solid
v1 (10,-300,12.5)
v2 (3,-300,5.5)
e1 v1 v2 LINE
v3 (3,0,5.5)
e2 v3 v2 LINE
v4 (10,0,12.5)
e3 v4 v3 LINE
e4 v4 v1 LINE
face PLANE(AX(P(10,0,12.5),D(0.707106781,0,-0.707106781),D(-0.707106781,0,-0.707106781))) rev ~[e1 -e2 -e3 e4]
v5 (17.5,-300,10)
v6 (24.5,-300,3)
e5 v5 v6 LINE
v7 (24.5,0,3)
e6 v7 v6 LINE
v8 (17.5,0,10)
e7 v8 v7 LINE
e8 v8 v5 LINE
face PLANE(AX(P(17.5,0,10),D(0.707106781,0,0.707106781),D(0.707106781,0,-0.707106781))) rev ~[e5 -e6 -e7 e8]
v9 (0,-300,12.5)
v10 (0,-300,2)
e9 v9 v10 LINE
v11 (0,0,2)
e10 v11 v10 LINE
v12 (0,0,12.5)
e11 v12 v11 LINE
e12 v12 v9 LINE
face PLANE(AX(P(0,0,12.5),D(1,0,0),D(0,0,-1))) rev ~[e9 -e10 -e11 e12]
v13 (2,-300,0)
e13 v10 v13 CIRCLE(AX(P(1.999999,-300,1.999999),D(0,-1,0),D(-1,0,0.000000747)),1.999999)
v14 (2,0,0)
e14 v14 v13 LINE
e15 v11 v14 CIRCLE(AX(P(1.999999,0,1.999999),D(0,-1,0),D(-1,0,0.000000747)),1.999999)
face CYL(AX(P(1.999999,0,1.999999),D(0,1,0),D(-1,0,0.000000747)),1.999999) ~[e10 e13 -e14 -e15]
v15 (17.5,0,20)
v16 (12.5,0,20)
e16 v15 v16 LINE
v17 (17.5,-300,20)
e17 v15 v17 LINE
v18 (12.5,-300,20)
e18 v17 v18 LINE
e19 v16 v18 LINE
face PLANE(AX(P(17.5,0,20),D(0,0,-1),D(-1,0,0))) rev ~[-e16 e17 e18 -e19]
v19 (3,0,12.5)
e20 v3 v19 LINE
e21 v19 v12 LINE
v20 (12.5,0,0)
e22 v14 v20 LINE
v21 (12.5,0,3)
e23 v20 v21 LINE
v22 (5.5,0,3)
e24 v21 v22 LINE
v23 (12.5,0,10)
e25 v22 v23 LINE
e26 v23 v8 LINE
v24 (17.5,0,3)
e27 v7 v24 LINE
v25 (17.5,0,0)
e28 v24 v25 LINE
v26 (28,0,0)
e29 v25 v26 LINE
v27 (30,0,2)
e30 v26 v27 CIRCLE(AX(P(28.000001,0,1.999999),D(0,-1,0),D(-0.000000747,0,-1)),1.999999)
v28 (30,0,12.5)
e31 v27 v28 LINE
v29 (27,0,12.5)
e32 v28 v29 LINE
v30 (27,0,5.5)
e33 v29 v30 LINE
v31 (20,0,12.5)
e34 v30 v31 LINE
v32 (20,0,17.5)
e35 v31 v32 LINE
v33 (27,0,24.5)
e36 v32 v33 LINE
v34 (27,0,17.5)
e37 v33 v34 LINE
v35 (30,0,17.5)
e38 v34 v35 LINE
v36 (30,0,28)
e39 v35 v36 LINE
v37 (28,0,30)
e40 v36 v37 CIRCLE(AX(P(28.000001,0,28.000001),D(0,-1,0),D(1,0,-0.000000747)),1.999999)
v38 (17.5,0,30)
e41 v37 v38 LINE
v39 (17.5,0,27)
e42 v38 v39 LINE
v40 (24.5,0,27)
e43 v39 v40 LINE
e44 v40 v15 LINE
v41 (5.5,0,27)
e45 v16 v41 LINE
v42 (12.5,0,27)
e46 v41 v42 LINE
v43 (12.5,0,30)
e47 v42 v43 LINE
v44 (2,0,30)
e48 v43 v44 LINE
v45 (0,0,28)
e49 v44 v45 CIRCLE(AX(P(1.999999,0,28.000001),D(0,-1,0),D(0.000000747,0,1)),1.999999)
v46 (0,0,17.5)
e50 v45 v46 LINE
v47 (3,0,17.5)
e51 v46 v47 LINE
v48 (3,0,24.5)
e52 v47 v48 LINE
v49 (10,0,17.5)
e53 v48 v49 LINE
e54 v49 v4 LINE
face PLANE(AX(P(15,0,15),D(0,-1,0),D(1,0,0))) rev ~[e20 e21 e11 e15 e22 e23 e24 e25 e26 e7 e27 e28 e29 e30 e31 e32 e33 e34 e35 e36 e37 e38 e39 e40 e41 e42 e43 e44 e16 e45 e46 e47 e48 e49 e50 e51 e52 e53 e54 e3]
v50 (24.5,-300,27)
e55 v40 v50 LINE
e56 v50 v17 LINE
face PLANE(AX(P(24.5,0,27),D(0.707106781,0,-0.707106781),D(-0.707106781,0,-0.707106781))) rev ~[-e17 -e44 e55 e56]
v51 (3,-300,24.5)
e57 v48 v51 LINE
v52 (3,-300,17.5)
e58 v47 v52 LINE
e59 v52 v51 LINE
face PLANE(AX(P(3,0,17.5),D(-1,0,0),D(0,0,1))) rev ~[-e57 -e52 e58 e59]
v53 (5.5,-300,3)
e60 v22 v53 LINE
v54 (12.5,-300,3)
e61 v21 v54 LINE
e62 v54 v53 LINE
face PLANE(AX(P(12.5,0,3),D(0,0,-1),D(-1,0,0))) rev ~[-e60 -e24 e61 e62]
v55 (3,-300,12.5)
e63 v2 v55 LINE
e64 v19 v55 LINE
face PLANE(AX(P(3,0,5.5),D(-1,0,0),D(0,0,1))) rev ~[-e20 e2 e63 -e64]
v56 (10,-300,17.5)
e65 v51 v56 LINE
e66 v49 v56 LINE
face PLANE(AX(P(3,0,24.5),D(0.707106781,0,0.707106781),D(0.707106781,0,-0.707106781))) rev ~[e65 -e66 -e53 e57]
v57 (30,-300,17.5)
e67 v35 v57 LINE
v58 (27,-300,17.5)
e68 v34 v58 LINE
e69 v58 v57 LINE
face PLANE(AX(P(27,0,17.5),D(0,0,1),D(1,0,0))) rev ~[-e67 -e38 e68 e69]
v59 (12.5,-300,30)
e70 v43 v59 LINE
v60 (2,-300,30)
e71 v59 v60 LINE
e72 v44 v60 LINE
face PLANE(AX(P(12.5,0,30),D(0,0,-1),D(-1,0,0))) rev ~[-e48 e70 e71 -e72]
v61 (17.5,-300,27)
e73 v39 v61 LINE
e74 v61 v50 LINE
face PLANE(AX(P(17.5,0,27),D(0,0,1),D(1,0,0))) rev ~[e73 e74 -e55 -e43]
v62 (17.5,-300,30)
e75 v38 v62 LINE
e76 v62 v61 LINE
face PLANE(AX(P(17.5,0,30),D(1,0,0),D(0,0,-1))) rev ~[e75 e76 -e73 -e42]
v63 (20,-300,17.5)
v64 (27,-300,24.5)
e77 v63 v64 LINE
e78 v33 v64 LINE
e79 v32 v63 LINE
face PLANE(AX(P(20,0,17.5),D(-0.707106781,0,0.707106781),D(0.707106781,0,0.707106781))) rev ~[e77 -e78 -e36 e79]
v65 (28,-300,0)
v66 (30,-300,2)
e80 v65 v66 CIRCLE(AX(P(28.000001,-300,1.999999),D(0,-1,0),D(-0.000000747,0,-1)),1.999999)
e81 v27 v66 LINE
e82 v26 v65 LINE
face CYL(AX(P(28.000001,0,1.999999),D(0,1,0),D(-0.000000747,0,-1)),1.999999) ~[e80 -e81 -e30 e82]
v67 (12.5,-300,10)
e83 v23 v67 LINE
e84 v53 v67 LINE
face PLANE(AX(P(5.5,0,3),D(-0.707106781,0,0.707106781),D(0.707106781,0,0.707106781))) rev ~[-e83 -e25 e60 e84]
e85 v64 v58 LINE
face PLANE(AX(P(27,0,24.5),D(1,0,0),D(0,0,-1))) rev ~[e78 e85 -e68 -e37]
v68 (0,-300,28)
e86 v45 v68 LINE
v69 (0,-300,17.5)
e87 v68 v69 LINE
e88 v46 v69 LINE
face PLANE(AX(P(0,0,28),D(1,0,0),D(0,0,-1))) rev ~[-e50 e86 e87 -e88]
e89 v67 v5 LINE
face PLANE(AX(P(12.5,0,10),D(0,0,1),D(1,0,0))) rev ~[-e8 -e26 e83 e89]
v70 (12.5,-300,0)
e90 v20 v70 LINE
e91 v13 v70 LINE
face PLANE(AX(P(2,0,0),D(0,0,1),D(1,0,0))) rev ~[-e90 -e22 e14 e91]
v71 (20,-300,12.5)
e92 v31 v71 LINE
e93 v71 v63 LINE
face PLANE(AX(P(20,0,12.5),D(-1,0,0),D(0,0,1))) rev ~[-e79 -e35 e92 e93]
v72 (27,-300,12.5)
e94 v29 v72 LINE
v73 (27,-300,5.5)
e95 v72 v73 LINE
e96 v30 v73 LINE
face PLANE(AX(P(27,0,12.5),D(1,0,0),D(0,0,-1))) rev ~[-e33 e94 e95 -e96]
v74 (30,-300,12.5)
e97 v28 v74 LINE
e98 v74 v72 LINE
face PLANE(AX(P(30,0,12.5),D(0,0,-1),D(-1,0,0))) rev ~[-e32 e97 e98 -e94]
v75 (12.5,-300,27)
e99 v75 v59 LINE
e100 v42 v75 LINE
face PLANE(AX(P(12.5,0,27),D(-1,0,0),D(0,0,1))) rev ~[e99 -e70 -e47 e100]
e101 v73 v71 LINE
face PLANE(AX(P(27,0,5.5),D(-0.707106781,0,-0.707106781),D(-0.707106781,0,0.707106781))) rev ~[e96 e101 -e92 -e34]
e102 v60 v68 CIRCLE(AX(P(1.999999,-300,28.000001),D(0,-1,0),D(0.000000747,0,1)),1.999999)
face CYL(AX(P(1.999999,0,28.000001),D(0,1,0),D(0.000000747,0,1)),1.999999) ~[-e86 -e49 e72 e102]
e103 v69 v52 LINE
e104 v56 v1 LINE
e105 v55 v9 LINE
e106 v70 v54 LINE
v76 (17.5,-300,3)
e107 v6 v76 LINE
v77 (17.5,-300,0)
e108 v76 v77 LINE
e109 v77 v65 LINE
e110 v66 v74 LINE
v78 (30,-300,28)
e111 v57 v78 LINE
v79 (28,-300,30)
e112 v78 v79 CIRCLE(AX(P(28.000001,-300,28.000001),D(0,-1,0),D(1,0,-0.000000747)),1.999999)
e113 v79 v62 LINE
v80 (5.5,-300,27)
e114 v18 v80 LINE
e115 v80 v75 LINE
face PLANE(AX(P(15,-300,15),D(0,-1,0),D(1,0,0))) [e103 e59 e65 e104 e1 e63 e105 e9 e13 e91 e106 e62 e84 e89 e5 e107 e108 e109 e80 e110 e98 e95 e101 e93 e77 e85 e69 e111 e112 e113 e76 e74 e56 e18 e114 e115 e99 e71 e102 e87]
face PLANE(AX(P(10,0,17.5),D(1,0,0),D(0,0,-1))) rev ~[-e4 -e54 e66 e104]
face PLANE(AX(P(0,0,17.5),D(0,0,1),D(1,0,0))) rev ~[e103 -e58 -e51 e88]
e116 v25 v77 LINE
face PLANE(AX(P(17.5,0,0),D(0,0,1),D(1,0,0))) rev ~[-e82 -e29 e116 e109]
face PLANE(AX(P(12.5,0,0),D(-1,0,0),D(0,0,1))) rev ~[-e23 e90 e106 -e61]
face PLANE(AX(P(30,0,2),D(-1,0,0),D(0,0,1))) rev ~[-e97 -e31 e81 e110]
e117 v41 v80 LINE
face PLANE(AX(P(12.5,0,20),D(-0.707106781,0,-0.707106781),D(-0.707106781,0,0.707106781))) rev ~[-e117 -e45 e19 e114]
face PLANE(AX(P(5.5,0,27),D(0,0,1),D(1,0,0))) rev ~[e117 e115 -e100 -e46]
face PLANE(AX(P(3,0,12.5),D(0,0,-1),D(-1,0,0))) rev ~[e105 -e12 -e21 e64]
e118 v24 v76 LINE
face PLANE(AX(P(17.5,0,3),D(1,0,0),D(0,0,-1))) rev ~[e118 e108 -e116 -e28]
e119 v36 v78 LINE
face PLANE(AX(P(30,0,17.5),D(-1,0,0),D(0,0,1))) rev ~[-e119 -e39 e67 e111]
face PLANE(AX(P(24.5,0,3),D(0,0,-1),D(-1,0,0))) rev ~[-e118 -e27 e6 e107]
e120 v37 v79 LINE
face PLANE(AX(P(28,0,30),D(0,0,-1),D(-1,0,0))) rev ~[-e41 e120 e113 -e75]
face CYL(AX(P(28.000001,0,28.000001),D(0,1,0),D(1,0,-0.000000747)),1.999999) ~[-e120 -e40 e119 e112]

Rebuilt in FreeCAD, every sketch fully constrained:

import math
import FreeCAD as App
import Part
import Sketcher
Q = App.Units.Quantity

doc = App.newDocument("Part")
body = doc.addObject("PartDesign::Body", "Body")

# Sketch on XZ plane
sketch1 = body.newObject("Sketcher::SketchObject", "Sketch")
sketch1.AttachmentSupport = (doc.getObject("XZ_Plane"), [""])
sketch1.MapMode = "FlatFace"
sketch1.addGeometry([
    Part.LineSegment(App.Vector(28, 30, 0), App.Vector(17.5, 30, 0)),  # 0
    Part.LineSegment(App.Vector(17.5, 30, 0), App.Vector(17.5, 27, 0)),  # 1
    Part.LineSegment(App.Vector(17.5, 27, 0), App.Vector(24.5, 27, 0)),  # 2
    Part.LineSegment(App.Vector(24.5, 27, 0), App.Vector(17.5, 20, 0)),  # 3
    Part.LineSegment(App.Vector(17.5, 20, 0), App.Vector(12.5, 20, 0)),  # 4
    Part.LineSegment(App.Vector(12.5, 20, 0), App.Vector(5.5, 27, 0)),  # 5
    Part.LineSegment(App.Vector(5.5, 27, 0), App.Vector(12.5, 27, 0)),  # 6
    Part.LineSegment(App.Vector(12.5, 27, 0), App.Vector(12.5, 30, 0)),  # 7
    Part.LineSegment(App.Vector(12.5, 30, 0), App.Vector(2, 30, 0)),  # 8
    Part.ArcOfCircle(Part.Circle(App.Vector(2, 28, 0), App.Vector(0, 0, 1), 2), math.radians(90), math.radians(180)),  # 9
    Part.LineSegment(App.Vector(0, 28, 0), App.Vector(0, 17.5, 0)),  # 10
    Part.LineSegment(App.Vector(0, 17.5, 0), App.Vector(3, 17.5, 0)),  # 11
    Part.LineSegment(App.Vector(3, 17.5, 0), App.Vector(3, 24.5, 0)),  # 12
    Part.LineSegment(App.Vector(3, 24.5, 0), App.Vector(10, 17.5, 0)),  # 13
    Part.LineSegment(App.Vector(10, 17.5, 0), App.Vector(10, 12.5, 0)),  # 14
    Part.LineSegment(App.Vector(10, 12.5, 0), App.Vector(3, 5.5, 0)),  # 15
    Part.LineSegment(App.Vector(3, 5.5, 0), App.Vector(3, 12.5, 0)),  # 16
    Part.LineSegment(App.Vector(3, 12.5, 0), App.Vector(0, 12.5, 0)),  # 17
    Part.LineSegment(App.Vector(0, 12.5, 0), App.Vector(0, 2, 0)),  # 18
    Part.ArcOfCircle(Part.Circle(App.Vector(2, 2, 0), App.Vector(0, 0, 1), 2), math.radians(180), math.radians(270)),  # 19
    Part.LineSegment(App.Vector(2, 0, 0), App.Vector(12.5, 0, 0)),  # 20
    Part.LineSegment(App.Vector(12.5, 0, 0), App.Vector(12.5, 3, 0)),  # 21
    Part.LineSegment(App.Vector(12.5, 3, 0), App.Vector(5.5, 3, 0)),  # 22
    Part.LineSegment(App.Vector(5.5, 3, 0), App.Vector(12.5, 10, 0)),  # 23
    Part.LineSegment(App.Vector(12.5, 10, 0), App.Vector(17.5, 10, 0)),  # 24
    Part.LineSegment(App.Vector(17.5, 10, 0), App.Vector(24.5, 3, 0)),  # 25
    Part.LineSegment(App.Vector(24.5, 3, 0), App.Vector(17.5, 3, 0)),  # 26
    Part.LineSegment(App.Vector(17.5, 3, 0), App.Vector(17.5, 0, 0)),  # 27
    Part.LineSegment(App.Vector(17.5, 0, 0), App.Vector(28, 0, 0)),  # 28
    Part.ArcOfCircle(Part.Circle(App.Vector(28, 2, 0), App.Vector(0, 0, 1), 2), math.radians(-90), math.radians(0)),  # 29
    Part.LineSegment(App.Vector(30, 2, 0), App.Vector(30, 12.5, 0)),  # 30
    Part.LineSegment(App.Vector(30, 12.5, 0), App.Vector(27, 12.5, 0)),  # 31
    Part.LineSegment(App.Vector(27, 12.5, 0), App.Vector(27, 5.5, 0)),  # 32
    Part.LineSegment(App.Vector(27, 5.5, 0), App.Vector(20, 12.5, 0)),  # 33
    Part.LineSegment(App.Vector(20, 12.5, 0), App.Vector(20, 17.5, 0)),  # 34
    Part.LineSegment(App.Vector(20, 17.5, 0), App.Vector(27, 24.5, 0)),  # 35
    Part.LineSegment(App.Vector(27, 24.5, 0), App.Vector(27, 17.5, 0)),  # 36
    Part.LineSegment(App.Vector(27, 17.5, 0), App.Vector(30, 17.5, 0)),  # 37
    Part.LineSegment(App.Vector(30, 17.5, 0), App.Vector(30, 28, 0)),  # 38
    Part.ArcOfCircle(Part.Circle(App.Vector(28, 28, 0), App.Vector(0, 0, 1), 2), math.radians(0), math.radians(90)),  # 39
], False)
sketch1.addConstraint([
    Sketcher.Constraint("Coincident", 0, 2, 1, 1),
    Sketcher.Constraint("Coincident", 1, 2, 2, 1),
    Sketcher.Constraint("Coincident", 2, 2, 3, 1),
    Sketcher.Constraint("Coincident", 3, 2, 4, 1),
    Sketcher.Constraint("Coincident", 4, 2, 5, 1),
    Sketcher.Constraint("Coincident", 5, 2, 6, 1),
    Sketcher.Constraint("Coincident", 6, 2, 7, 1),
    Sketcher.Constraint("Coincident", 7, 2, 8, 1),
    Sketcher.Constraint("Tangent", 8, 2, 9, 1),
    Sketcher.Constraint("Tangent", 9, 2, 10, 1),
    Sketcher.Constraint("Coincident", 10, 2, 11, 1),
    Sketcher.Constraint("Coincident", 11, 2, 12, 1),
    Sketcher.Constraint("Coincident", 12, 2, 13, 1),
    Sketcher.Constraint("Coincident", 13, 2, 14, 1),
    Sketcher.Constraint("Coincident", 14, 2, 15, 1),
    Sketcher.Constraint("Coincident", 15, 2, 16, 1),
    Sketcher.Constraint("Coincident", 16, 2, 17, 1),
    Sketcher.Constraint("Coincident", 17, 2, 18, 1),
    Sketcher.Constraint("Tangent", 18, 2, 19, 1),
    Sketcher.Constraint("Tangent", 19, 2, 20, 1),
    Sketcher.Constraint("Coincident", 20, 2, 21, 1),
    Sketcher.Constraint("Coincident", 21, 2, 22, 1),
    Sketcher.Constraint("Coincident", 22, 2, 23, 1),
    Sketcher.Constraint("Coincident", 23, 2, 24, 1),
    Sketcher.Constraint("Coincident", 24, 2, 25, 1),
    Sketcher.Constraint("Coincident", 25, 2, 26, 1),
    Sketcher.Constraint("Coincident", 26, 2, 27, 1),
    Sketcher.Constraint("Coincident", 27, 2, 28, 1),
    Sketcher.Constraint("Tangent", 28, 2, 29, 1),
    Sketcher.Constraint("Tangent", 29, 2, 30, 1),
    Sketcher.Constraint("Coincident", 30, 2, 31, 1),
    Sketcher.Constraint("Coincident", 31, 2, 32, 1),
    Sketcher.Constraint("Coincident", 32, 2, 33, 1),
    Sketcher.Constraint("Coincident", 33, 2, 34, 1),
    Sketcher.Constraint("Coincident", 34, 2, 35, 1),
    Sketcher.Constraint("Coincident", 35, 2, 36, 1),
    Sketcher.Constraint("Coincident", 36, 2, 37, 1),
    Sketcher.Constraint("Coincident", 37, 2, 38, 1),
    Sketcher.Constraint("Tangent", 38, 2, 39, 1),
    Sketcher.Constraint("Tangent", 39, 2, 0, 1),
    Sketcher.Constraint("Horizontal", 0),
    Sketcher.Constraint("Vertical", 1),
    Sketcher.Constraint("Horizontal", 2),
    Sketcher.Constraint("Horizontal", 4),
    Sketcher.Constraint("Horizontal", 6),
    Sketcher.Constraint("Vertical", 7),
    Sketcher.Constraint("Horizontal", 8),
    Sketcher.Constraint("Vertical", 10),
    Sketcher.Constraint("Horizontal", 11),
    Sketcher.Constraint("Vertical", 12),
    Sketcher.Constraint("Vertical", 14),
    Sketcher.Constraint("Vertical", 16),
    Sketcher.Constraint("Horizontal", 17),
    Sketcher.Constraint("Vertical", 18),
    Sketcher.Constraint("Horizontal", 20),
    Sketcher.Constraint("Vertical", 21),
    Sketcher.Constraint("Horizontal", 22),
    Sketcher.Constraint("Horizontal", 24),
    Sketcher.Constraint("Horizontal", 26),
    Sketcher.Constraint("Vertical", 27),
    Sketcher.Constraint("Horizontal", 28),
    Sketcher.Constraint("Vertical", 30),
    Sketcher.Constraint("Horizontal", 31),
    Sketcher.Constraint("Vertical", 32),
    Sketcher.Constraint("Vertical", 34),
    Sketcher.Constraint("Vertical", 36),
    Sketcher.Constraint("Horizontal", 37),
    Sketcher.Constraint("Vertical", 38),
    Sketcher.Constraint("Equal", 9, 19),
    Sketcher.Constraint("Equal", 19, 29),
    Sketcher.Constraint("Equal", 29, 39),
    Sketcher.Constraint("PointOnObject", 9, 2, -2),
    Sketcher.Constraint("PointOnObject", 17, 2, -2),
    Sketcher.Constraint("PointOnObject", 19, 2, -1),
    Sketcher.Constraint("PointOnObject", 27, 2, -1),
    Sketcher.Constraint("Perpendicular", 3, 5),
    Sketcher.Constraint("Parallel", 5, 13),
    Sketcher.Constraint("Perpendicular", 13, 15),
    Sketcher.Constraint("Parallel", 15, 23),
    Sketcher.Constraint("Perpendicular", 23, 25),
    Sketcher.Constraint("Parallel", 25, 33),
    Sketcher.Constraint("Perpendicular", 33, 35),
    Sketcher.Constraint("Horizontal", 9, 3, 39, 3),
    Sketcher.Constraint("Horizontal", 2, 2, 5, 2),
    Sketcher.Constraint("Horizontal", 11, 2, 13, 2),
    Sketcher.Constraint("Horizontal", 14, 2, 16, 2),
    Sketcher.Constraint("Horizontal", 22, 2, 25, 2),
    Sketcher.Constraint("Horizontal", 17, 2, 30, 2),
    Sketcher.Constraint("Horizontal", 15, 2, 32, 2),
    Sketcher.Constraint("Horizontal", 31, 2, 33, 2),
    Sketcher.Constraint("Horizontal", 13, 2, 34, 2),
    Sketcher.Constraint("Horizontal", 12, 2, 35, 2),
    Sketcher.Constraint("Horizontal", 34, 2, 36, 2),
    Sketcher.Constraint("Vertical", 29, 3, 39, 3),
    Sketcher.Constraint("Vertical", 1, 2, 3, 2),
    Sketcher.Constraint("Vertical", 4, 2, 6, 2),
    Sketcher.Constraint("Vertical", 12, 2, 15, 2),
    Sketcher.Constraint("Vertical", 7, 2, 20, 2),
    Sketcher.Constraint("Vertical", 5, 2, 22, 2),
    Sketcher.Constraint("Vertical", 21, 2, 23, 2),
    Sketcher.Constraint("Vertical", 3, 2, 24, 2),
    Sketcher.Constraint("Vertical", 2, 2, 25, 2),
    Sketcher.Constraint("Vertical", 24, 2, 26, 2),
    Sketcher.Constraint("Equal", 0, 8),
    Sketcher.Constraint("Equal", 17, 31),
    Sketcher.Constraint("Equal", 37, 1),
    Sketcher.Constraint("Equal", 28, 10),
    Sketcher.Constraint("Equal", 26, 12),
    Sketcher.Constraint("Equal", 24, 14),
    Sketcher.Constraint("Equal", 10, 18),
    Sketcher.Constraint("Equal", 7, 21),
    Sketcher.Constraint("Radius", 9, Q("1.999999 mm")),
    Sketcher.Constraint("DistanceX", 2, 1, 2, 2, Q("7 mm")),
    Sketcher.Constraint("DistanceX", 4, 2, 4, 1, Q("5 mm")),
    Sketcher.Constraint("DistanceX", 11, 1, 11, 2, Q("3 mm")),
    Sketcher.Constraint("DistanceX", 0, 2, 0, 1, Q("10.5 mm")),
])
pad1 = body.newObject("PartDesign::Pad", "Pad")
pad1.Profile = sketch1
pad1.Length = 300

doc.recompute()
